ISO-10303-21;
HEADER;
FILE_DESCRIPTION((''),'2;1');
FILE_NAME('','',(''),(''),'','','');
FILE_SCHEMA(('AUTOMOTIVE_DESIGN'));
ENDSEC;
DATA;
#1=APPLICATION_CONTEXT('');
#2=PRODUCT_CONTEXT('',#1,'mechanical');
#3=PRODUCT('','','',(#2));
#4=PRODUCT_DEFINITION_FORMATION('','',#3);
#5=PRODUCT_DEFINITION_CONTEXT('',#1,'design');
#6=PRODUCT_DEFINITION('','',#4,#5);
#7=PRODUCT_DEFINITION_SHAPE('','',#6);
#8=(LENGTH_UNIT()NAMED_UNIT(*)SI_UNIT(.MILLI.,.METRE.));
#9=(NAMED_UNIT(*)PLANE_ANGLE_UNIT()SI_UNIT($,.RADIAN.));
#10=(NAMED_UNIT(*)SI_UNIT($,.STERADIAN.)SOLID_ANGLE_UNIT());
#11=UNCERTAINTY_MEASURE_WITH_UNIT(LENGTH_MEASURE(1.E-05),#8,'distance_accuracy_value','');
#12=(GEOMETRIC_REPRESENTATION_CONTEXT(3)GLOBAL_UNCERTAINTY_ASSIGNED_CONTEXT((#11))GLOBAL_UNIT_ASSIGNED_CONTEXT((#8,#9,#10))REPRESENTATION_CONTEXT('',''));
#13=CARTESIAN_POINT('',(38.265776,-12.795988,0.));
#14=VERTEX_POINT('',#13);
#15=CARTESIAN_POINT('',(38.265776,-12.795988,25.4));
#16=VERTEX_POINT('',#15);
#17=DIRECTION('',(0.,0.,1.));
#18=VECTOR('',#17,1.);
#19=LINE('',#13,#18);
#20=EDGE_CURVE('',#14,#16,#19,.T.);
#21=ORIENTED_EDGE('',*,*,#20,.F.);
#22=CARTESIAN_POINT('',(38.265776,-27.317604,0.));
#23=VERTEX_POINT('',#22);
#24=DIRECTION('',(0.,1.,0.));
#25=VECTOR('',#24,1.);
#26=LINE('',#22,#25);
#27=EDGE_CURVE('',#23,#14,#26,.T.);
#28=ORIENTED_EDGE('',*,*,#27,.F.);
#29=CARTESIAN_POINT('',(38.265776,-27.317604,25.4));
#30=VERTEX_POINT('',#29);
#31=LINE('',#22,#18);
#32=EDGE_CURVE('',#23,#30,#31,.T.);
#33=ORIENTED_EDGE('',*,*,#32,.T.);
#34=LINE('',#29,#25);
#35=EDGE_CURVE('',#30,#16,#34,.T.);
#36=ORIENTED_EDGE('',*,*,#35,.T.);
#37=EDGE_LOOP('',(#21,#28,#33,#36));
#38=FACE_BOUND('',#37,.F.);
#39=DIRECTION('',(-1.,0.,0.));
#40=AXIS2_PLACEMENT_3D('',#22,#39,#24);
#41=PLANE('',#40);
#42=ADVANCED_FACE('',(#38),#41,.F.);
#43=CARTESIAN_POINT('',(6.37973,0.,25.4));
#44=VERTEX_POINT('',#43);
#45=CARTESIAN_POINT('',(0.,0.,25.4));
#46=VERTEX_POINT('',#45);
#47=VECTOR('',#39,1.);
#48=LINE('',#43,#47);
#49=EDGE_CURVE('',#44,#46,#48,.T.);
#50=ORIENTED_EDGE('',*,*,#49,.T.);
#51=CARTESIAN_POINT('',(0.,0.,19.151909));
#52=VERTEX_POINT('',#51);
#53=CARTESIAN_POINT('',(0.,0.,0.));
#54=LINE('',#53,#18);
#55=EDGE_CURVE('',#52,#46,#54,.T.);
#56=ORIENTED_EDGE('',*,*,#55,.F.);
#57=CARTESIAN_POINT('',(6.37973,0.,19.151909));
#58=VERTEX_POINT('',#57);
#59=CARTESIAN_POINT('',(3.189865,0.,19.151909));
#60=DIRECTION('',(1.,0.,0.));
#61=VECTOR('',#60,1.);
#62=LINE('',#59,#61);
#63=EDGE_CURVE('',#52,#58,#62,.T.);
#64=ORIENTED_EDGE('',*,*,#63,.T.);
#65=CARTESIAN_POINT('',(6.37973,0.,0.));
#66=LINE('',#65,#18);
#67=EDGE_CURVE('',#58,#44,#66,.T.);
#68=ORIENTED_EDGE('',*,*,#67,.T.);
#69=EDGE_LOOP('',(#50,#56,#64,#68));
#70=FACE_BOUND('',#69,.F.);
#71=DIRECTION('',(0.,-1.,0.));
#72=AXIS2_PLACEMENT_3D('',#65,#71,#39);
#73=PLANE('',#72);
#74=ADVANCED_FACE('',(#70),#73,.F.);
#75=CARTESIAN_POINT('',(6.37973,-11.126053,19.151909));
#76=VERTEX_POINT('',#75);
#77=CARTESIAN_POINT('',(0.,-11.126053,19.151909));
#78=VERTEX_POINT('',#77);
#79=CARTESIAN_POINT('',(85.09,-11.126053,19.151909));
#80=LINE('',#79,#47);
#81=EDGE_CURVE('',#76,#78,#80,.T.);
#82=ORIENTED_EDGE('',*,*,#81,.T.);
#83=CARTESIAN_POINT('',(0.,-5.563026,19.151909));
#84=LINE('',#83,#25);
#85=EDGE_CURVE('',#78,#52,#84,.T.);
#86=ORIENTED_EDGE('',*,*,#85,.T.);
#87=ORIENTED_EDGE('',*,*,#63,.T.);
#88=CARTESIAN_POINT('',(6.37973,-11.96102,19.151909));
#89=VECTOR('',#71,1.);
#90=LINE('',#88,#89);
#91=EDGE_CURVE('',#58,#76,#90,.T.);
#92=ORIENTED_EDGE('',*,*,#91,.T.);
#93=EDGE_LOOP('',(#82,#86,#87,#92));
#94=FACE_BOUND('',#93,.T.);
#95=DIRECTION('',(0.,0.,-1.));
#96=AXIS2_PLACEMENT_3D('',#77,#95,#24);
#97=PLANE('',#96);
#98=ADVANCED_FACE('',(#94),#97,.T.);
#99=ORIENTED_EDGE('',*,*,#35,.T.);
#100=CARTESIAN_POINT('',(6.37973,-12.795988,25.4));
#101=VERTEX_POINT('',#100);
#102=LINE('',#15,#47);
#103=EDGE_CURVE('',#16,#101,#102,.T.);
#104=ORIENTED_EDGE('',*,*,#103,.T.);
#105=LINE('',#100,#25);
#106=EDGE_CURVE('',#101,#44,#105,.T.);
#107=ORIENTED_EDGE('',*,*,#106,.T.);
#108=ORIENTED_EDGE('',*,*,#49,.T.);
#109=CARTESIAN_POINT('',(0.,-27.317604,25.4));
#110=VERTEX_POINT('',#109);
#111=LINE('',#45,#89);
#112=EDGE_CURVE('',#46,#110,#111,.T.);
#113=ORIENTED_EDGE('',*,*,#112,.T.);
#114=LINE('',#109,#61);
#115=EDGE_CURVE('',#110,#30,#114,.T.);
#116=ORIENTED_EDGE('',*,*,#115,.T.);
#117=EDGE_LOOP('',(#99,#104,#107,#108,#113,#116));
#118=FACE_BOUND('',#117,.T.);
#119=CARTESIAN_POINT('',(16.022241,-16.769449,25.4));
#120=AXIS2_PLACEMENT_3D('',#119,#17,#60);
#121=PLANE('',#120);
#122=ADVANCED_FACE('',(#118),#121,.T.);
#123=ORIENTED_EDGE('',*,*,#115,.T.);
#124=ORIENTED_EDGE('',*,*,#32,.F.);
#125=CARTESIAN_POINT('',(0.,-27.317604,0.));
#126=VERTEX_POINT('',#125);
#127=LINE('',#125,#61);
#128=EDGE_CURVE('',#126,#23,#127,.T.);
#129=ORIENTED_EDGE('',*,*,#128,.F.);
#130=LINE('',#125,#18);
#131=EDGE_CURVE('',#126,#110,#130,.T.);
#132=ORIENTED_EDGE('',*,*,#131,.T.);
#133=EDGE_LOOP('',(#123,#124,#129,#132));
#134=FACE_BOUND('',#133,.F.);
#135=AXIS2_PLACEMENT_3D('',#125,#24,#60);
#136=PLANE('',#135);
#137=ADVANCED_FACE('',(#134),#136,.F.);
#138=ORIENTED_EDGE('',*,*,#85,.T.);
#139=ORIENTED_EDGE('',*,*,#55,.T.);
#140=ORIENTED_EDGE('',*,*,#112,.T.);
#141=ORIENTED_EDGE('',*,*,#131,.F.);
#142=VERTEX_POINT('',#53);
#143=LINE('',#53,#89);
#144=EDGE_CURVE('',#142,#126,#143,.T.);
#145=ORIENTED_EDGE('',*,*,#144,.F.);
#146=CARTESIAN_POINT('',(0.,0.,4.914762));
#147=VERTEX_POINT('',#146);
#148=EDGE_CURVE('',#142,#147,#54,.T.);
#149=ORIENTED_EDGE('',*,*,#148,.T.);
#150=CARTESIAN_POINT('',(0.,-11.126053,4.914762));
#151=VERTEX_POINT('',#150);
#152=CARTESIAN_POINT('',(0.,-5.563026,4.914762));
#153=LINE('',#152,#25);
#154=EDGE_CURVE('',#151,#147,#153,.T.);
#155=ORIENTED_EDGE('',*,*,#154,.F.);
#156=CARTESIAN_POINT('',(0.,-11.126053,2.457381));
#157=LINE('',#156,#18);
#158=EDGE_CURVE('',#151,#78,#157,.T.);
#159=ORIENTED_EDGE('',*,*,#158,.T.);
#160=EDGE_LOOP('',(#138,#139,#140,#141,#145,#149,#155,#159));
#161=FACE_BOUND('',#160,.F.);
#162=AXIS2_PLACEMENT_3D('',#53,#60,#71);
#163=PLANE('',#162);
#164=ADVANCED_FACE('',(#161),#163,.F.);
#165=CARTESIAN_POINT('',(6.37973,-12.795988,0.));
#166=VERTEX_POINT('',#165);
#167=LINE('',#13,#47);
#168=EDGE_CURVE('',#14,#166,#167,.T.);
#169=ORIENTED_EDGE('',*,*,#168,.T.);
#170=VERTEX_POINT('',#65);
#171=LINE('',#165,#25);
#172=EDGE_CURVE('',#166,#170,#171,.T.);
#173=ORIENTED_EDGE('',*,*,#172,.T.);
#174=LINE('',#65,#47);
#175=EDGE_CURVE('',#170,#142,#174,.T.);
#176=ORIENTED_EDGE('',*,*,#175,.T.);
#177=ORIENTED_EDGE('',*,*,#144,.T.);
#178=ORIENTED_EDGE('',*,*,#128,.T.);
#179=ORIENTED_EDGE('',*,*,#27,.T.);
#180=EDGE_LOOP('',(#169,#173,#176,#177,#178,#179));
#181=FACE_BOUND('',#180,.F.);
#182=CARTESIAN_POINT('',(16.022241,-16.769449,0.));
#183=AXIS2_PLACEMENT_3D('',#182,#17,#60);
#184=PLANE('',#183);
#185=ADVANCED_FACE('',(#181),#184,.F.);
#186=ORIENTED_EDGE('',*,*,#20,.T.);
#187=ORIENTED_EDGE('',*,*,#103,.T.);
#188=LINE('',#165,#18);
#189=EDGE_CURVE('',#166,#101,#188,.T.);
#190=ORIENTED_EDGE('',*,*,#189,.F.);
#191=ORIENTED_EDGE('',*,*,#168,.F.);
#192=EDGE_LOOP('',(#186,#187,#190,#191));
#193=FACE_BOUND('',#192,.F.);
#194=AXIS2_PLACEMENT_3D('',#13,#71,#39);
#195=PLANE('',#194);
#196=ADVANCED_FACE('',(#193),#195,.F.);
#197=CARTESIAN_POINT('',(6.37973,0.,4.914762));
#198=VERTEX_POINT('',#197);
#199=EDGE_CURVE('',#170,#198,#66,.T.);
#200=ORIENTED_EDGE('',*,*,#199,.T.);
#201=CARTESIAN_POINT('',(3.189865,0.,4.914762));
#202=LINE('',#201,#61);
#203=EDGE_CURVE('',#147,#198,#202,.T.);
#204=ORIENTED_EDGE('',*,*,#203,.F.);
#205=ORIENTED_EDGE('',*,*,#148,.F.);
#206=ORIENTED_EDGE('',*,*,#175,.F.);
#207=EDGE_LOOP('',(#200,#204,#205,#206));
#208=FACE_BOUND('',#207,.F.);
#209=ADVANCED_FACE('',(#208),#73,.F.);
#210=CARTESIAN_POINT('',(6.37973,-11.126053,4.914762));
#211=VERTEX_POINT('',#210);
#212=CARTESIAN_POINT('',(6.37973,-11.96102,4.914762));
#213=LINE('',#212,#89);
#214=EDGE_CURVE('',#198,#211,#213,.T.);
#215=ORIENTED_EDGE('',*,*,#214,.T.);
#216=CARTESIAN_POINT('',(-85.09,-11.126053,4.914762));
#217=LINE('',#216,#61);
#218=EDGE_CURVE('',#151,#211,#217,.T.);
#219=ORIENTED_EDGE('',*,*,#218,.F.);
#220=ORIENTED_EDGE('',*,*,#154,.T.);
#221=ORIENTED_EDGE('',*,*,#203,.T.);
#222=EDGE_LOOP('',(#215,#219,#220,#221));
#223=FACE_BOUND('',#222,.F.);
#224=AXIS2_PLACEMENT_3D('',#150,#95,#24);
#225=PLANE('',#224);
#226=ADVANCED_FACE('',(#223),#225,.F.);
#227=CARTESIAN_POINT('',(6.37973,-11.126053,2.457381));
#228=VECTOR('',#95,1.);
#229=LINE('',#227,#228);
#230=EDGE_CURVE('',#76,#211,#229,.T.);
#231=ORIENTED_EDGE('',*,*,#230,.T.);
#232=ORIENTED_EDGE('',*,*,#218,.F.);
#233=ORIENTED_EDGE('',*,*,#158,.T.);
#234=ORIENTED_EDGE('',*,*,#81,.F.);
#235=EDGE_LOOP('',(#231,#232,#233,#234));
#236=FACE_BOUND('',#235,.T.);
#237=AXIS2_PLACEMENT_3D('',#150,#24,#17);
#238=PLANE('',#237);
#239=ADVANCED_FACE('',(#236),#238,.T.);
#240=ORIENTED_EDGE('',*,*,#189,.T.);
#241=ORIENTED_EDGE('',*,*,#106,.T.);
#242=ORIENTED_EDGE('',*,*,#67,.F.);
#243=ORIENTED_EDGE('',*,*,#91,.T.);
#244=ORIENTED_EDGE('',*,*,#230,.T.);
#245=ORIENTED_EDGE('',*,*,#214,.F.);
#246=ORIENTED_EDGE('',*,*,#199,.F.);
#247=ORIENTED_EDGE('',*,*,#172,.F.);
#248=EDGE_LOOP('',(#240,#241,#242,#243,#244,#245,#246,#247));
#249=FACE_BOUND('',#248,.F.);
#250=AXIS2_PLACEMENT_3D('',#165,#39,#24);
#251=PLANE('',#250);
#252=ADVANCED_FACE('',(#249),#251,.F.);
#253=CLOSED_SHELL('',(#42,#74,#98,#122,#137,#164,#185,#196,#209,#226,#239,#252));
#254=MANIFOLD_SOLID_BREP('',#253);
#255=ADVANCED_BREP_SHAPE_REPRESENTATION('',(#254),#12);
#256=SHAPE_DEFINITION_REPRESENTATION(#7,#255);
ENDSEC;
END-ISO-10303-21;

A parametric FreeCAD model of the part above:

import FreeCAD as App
import Part
import Sketcher
from FreeCAD import Vector
Q = App.Units.Quantity

doc = App.newDocument("Part")
body = doc.addObject("PartDesign::Body", "Body")

sketch1 = body.newObject("Sketcher::SketchObject", "Sketch")
sketch1.AttachmentSupport = (doc.getObject("XY_Plane"), [""])
sketch1.MapMode = "FlatFace"
sketch1.addGeometry(Part.LineSegment(Vector(6.37973, 0, 0), Vector(0, 0, 0)), False)
sketch1.addGeometry(Part.LineSegment(Vector(0, 0, 0), Vector(0, -27.317604, 0)), False)
sketch1.addGeometry(Part.LineSegment(Vector(0, -27.317604, 0), Vector(38.265776, -27.317604, 0)), False)
sketch1.addGeometry(Part.LineSegment(Vector(38.265776, -27.317604, 0), Vector(38.265776, -12.795988, 0)), False)
sketch1.addGeometry(Part.LineSegment(Vector(38.265776, -12.795988, 0), Vector(6.37973, -12.795988, 0)), False)
sketch1.addGeometry(Part.LineSegment(Vector(6.37973, -12.795988, 0), Vector(6.37973, 0, 0)), False)
sketch1.addConstraint(Sketcher.Constraint("Coincident", 0, 2, 1, 1))
sketch1.addConstraint(Sketcher.Constraint("Coincident", 1, 2, 2, 1))
sketch1.addConstraint(Sketcher.Constraint("Coincident", 2, 2, 3, 1))
sketch1.addConstraint(Sketcher.Constraint("Coincident", 3, 2, 4, 1))
sketch1.addConstraint(Sketcher.Constraint("Coincident", 4, 2, 5, 1))
sketch1.addConstraint(Sketcher.Constraint("Coincident", 5, 2, 0, 1))
sketch1.addConstraint(Sketcher.Constraint("Horizontal", 0))
sketch1.addConstraint(Sketcher.Constraint("Vertical", 1))
sketch1.addConstraint(Sketcher.Constraint("Horizontal", 2))
sketch1.addConstraint(Sketcher.Constraint("Vertical", 3))
sketch1.addConstraint(Sketcher.Constraint("Horizontal", 4))
sketch1.addConstraint(Sketcher.Constraint("Vertical", 5))
sketch1.addConstraint(Sketcher.Constraint("Coincident", 0, 2, -1, 1))
sketch1.addConstraint(Sketcher.Constraint("DistanceX", 0, 2, 0, 1, Q("6.37973 mm")))
sketch1.addConstraint(Sketcher.Constraint("DistanceX", 2, 1, 2, 2, Q("38.265776 mm")))
sketch1.addConstraint(Sketcher.Constraint("DistanceY", 1, 2, 1, 1, Q("27.317604 mm")))
sketch1.addConstraint(Sketcher.Constraint("DistanceY", 3, 1, 3, 2, Q("14.521616 mm")))
pad1 = body.newObject("PartDesign::Pad", "Pad")
pad1.Profile = sketch1
pad1.Length = Q("1 in")

sketch2 = body.newObject("Sketcher::SketchObject", "Sketch001")
sketch2.AttachmentSupport = (doc.getObject("YZ_Plane"), [""])
sketch2.MapMode = "FlatFace"
sketch2.addGeometry(Part.LineSegment(Vector(-11.126053, 19.151909, 0), Vector(-11.126053, 4.914762, 0)), False)
sketch2.addGeometry(Part.LineSegment(Vector(-11.126053, 4.914762, 0), Vector(0, 4.914762, 0)), False)
sketch2.addGeometry(Part.LineSegment(Vector(0, 4.914762, 0), Vector(0, 19.151909, 0)), False)
sketch2.addGeometry(Part.LineSegment(Vector(0, 19.151909, 0), Vector(-11.126053, 19.151909, 0)), False)
sketch2.addConstraint(Sketcher.Constraint("Coincident", 0, 2, 1, 1))
sketch2.addConstraint(Sketcher.Constraint("Coincident", 1, 2, 2, 1))
sketch2.addConstraint(Sketcher.Constraint("Coincident", 2, 2, 3, 1))
sketch2.addConstraint(Sketcher.Constraint("Coincident", 3, 2, 0, 1))
sketch2.addConstraint(Sketcher.Constraint("Vertical", 0))
sketch2.addConstraint(Sketcher.Constraint("Horizontal", 1))
sketch2.addConstraint(Sketcher.Constraint("Vertical", 2))
sketch2.addConstraint(Sketcher.Constraint("Horizontal", 3))
sketch2.addConstraint(Sketcher.Constraint("PointOnObject", 1, 2, -2))
sketch2.addConstraint(Sketcher.Constraint("DistanceX", 1, 1, 1, 2, Q("11.126053 mm")))
sketch2.addConstraint(Sketcher.Constraint("DistanceY", 0, 2, 0, 1, Q("14.237147 mm")))
sketch2.addConstraint(Sketcher.Constraint("DistanceY", -1, 1, 0, 2, Q("4.914762 mm")))
pocket1 = body.newObject("PartDesign::Pocket", "Pocket")
pocket1.Profile = sketch2
pocket1.Length = Q("6.7 in")
pocket1.Midplane = True

doc.recompute()
